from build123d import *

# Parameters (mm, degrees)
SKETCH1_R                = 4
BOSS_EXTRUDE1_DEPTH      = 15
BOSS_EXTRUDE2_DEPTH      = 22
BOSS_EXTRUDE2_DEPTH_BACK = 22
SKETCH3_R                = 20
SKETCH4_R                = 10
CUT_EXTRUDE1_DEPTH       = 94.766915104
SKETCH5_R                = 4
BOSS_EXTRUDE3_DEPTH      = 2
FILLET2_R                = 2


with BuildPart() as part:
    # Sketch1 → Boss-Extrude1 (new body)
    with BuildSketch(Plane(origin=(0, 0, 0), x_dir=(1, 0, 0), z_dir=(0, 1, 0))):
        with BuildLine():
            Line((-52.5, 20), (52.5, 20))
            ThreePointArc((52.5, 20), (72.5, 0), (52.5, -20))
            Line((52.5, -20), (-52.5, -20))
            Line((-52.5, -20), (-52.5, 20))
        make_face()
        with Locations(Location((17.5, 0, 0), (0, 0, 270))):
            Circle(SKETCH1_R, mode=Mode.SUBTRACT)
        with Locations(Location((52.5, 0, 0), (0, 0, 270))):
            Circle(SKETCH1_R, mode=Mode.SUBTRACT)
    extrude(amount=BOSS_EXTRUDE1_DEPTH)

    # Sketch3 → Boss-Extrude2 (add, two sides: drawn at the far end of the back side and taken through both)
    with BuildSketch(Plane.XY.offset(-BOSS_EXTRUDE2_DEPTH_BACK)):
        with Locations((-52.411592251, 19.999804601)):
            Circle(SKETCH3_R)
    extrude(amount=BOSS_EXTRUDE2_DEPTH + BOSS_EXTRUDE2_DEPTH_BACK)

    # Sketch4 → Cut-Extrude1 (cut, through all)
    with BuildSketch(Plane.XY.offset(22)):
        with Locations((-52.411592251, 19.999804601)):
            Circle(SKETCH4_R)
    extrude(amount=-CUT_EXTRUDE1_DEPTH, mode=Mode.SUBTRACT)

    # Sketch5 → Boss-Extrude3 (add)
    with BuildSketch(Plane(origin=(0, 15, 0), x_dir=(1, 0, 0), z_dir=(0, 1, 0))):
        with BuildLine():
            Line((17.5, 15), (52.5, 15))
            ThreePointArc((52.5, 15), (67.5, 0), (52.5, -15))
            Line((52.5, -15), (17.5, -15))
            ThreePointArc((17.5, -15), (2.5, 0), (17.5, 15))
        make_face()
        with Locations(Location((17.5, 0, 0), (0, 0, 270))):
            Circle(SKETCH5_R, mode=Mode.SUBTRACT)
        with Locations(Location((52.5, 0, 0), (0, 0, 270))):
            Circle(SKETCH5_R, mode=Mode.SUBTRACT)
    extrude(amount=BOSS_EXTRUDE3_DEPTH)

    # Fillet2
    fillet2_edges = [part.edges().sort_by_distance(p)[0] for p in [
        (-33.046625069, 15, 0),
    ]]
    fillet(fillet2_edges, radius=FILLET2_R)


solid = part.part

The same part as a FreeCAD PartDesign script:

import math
import FreeCAD as App
import Part
import Sketcher
from FreeCAD import Vector
Q = App.Units.Quantity


def edges_at(feature, points):
    """Names of the edges that pass closest to the given points."""
    edges = feature.Shape.Edges
    near = lambda p: min(range(len(edges)), key=lambda i: edges[i].distToShape(Part.Vertex(*p))[0])
    return sorted({f"Edge{near(p) + 1}" for p in points})

doc = App.newDocument("Part")
body = doc.addObject("PartDesign::Body", "Body")

sketch1 = body.newObject("Sketcher::SketchObject", "Sketch")
sketch1.AttachmentSupport = (doc.getObject("XZ_Plane"), [""])
sketch1.MapMode = "FlatFace"
sketch1.addGeometry(Part.LineSegment(Vector(52.5, -20, 0), Vector(-52.5, -20, 0)), False)
sketch1.addGeometry(Part.LineSegment(Vector(-52.5, -20, 0), Vector(-52.5, 20, 0)), False)
sketch1.addGeometry(Part.LineSegment(Vector(-52.5, 20, 0), Vector(52.5, 20, 0)), False)
sketch1.addGeometry(Part.ArcOfCircle(Part.Circle(Vector(52.5, 0, 0), Vector(0, 0, 1), 20), math.radians(-90), math.radians(90)), False)
sketch1.addGeometry(Part.Circle(Vector(52.5, 0, 0), Vector(0, 0, 1), 4), False)
sketch1.addGeometry(Part.Circle(Vector(17.5, 0, 0), Vector(0, 0, 1), 4), False)
sketch1.addConstraint(Sketcher.Constraint("Coincident", 0, 2, 1, 1))
sketch1.addConstraint(Sketcher.Constraint("Coincident", 1, 2, 2, 1))
sketch1.addConstraint(Sketcher.Constraint("Tangent", 2, 2, 3, 2))
sketch1.addConstraint(Sketcher.Constraint("Tangent", 3, 1, 0, 1))
sketch1.addConstraint(Sketcher.Constraint("Horizontal", 0))
sketch1.addConstraint(Sketcher.Constraint("Vertical", 1))
sketch1.addConstraint(Sketcher.Constraint("Horizontal", 2))
sketch1.addConstraint(Sketcher.Constraint("Coincident", 4, 3, 3, 3))
sketch1.addConstraint(Sketcher.Constraint("Equal", 4, 5))
sketch1.addConstraint(Sketcher.Constraint("Symmetric", 0, 2, 2, 2, -1, 1))
sketch1.addConstraint(Sketcher.Constraint("PointOnObject", 5, 3, -1))
sketch1.addConstraint(Sketcher.Constraint("Diameter", 4, Q("8 mm")))
sketch1.addConstraint(Sketcher.Constraint("Radius", 3, Q("20 mm")))
sketch1.addConstraint(Sketcher.Constraint("DistanceX", 0, 2, 0, 1, Q("105 mm")))
sketch1.addConstraint(Sketcher.Constraint("DistanceX", 5, 3, 3, 3, Q("35 mm")))
pad1 = body.newObject("PartDesign::Pad", "Pad")
pad1.Profile = sketch1
pad1.Length = 15
pad1.Reversed = True

sketch2 = body.newObject("Sketcher::SketchObject", "Sketch001")
sketch2.AttachmentSupport = (doc.getObject("XY_Plane"), [""])
sketch2.MapMode = "FlatFace"
sketch2.addGeometry(Part.Circle(Vector(-52, 20, 0), Vector(0, 0, 1), 20), False)
sketch2.addConstraint(Sketcher.Constraint("Diameter", 0, Q("40 mm")))
sketch2.addConstraint(Sketcher.Constraint("DistanceX", 0, 3, -1, 1, Q("52.411592 mm")))
sketch2.addConstraint(Sketcher.Constraint("DistanceY", -1, 1, 0, 3, Q("19.999805 mm")))
pad2 = body.newObject("PartDesign::Pad", "Pad001")
pad2.Profile = sketch2
pad2.Type = "TwoLengths"
pad2.Length = 22
pad2.Length2 = 22

sketch3 = body.newObject("Sketcher::SketchObject", "Sketch002")
sketch3.AttachmentSupport = (doc.getObject("XY_Plane"), [""])
sketch3.MapMode = "FlatFace"
sketch3.AttachmentOffset = App.Placement(Vector(0, 0, 22), App.Rotation())
sketch3.addGeometry(Part.Circle(Vector(-52, 20, 0), Vector(0, 0, 1), 10), False)
sketch3.addConstraint(Sketcher.Constraint("Diameter", 0, Q("20 mm")))
sketch3.addConstraint(Sketcher.Constraint("DistanceX", 0, 3, -1, 1, Q("52.411592 mm")))
sketch3.addConstraint(Sketcher.Constraint("DistanceY", -1, 1, 0, 3, Q("19.999805 mm")))
pocket1 = body.newObject("PartDesign::Pocket", "Pocket")
pocket1.Profile = sketch3
pocket1.Type = "ThroughAll"

sketch4 = body.newObject("Sketcher::SketchObject", "Sketch003")
sketch4.AttachmentSupport = (doc.getObject("XZ_Plane"), [""])
sketch4.MapMode = "FlatFace"
sketch4.AttachmentOffset = App.Placement(Vector(0, 0, -15), App.Rotation())
sketch4.addGeometry(Part.LineSegment(Vector(52.5, -15, 0), Vector(17.5, -15, 0)), False)
sketch4.addGeometry(Part.ArcOfCircle(Part.Circle(Vector(17.5, 0, 0), Vector(0, 0, 1), 15), math.radians(90), math.radians(270)), False)
sketch4.addGeometry(Part.LineSegment(Vector(17.5, 15, 0), Vector(52.5, 15, 0)), False)
sketch4.addGeometry(Part.ArcOfCircle(Part.Circle(Vector(52.5, 0, 0), Vector(0, 0, 1), 15), math.radians(-90), math.radians(90)), False)
sketch4.addGeometry(Part.Circle(Vector(52.5, 0, 0), Vector(0, 0, 1), 4), False)
sketch4.addGeometry(Part.Circle(Vector(17.5, 0, 0), Vector(0, 0, 1), 4), False)
sketch4.addConstraint(Sketcher.Constraint("Tangent", 0, 2, 1, 2))
sketch4.addConstraint(Sketcher.Constraint("Tangent", 1, 1, 2, 1))
sketch4.addConstraint(Sketcher.Constraint("Tangent", 2, 2, 3, 2))
sketch4.addConstraint(Sketcher.Constraint("Tangent", 3, 1, 0, 1))
sketch4.addConstraint(Sketcher.Constraint("Horizontal", 0))
sketch4.addConstraint(Sketcher.Constraint("Horizontal", 2))
sketch4.addConstraint(Sketcher.Constraint("Coincident", 4, 3, 3, 3))
sketch4.addConstraint(Sketcher.Constraint("Coincident", 5, 3, 1, 3))
sketch4.addConstraint(Sketcher.Constraint("Equal", 4, 5))
sketch4.addConstraint(Sketcher.Constraint("PointOnObject", 1, 3, -1))
sketch4.addConstraint(Sketcher.Constraint("Diameter", 4, Q("8 mm")))
sketch4.addConstraint(Sketcher.Constraint("Radius", 1, Q("15 mm")))
sketch4.addConstraint(Sketcher.Constraint("DistanceX", 0, 2, 0, 1, Q("35 mm")))
sketch4.addConstraint(Sketcher.Constraint("DistanceX", -1, 1, 1, 3, Q("17.5 mm")))
pad3 = body.newObject("PartDesign::Pad", "Pad002")
pad3.Profile = sketch4
pad3.Length = 2
pad3.Reversed = True
doc.recompute()

fillet = body.newObject("PartDesign::Fillet", "Fillet")
fillet.Base = (pad3, edges_at(pad3, [(-33.047, 15, 0)]))
fillet.Radius = 2

doc.recompute()
